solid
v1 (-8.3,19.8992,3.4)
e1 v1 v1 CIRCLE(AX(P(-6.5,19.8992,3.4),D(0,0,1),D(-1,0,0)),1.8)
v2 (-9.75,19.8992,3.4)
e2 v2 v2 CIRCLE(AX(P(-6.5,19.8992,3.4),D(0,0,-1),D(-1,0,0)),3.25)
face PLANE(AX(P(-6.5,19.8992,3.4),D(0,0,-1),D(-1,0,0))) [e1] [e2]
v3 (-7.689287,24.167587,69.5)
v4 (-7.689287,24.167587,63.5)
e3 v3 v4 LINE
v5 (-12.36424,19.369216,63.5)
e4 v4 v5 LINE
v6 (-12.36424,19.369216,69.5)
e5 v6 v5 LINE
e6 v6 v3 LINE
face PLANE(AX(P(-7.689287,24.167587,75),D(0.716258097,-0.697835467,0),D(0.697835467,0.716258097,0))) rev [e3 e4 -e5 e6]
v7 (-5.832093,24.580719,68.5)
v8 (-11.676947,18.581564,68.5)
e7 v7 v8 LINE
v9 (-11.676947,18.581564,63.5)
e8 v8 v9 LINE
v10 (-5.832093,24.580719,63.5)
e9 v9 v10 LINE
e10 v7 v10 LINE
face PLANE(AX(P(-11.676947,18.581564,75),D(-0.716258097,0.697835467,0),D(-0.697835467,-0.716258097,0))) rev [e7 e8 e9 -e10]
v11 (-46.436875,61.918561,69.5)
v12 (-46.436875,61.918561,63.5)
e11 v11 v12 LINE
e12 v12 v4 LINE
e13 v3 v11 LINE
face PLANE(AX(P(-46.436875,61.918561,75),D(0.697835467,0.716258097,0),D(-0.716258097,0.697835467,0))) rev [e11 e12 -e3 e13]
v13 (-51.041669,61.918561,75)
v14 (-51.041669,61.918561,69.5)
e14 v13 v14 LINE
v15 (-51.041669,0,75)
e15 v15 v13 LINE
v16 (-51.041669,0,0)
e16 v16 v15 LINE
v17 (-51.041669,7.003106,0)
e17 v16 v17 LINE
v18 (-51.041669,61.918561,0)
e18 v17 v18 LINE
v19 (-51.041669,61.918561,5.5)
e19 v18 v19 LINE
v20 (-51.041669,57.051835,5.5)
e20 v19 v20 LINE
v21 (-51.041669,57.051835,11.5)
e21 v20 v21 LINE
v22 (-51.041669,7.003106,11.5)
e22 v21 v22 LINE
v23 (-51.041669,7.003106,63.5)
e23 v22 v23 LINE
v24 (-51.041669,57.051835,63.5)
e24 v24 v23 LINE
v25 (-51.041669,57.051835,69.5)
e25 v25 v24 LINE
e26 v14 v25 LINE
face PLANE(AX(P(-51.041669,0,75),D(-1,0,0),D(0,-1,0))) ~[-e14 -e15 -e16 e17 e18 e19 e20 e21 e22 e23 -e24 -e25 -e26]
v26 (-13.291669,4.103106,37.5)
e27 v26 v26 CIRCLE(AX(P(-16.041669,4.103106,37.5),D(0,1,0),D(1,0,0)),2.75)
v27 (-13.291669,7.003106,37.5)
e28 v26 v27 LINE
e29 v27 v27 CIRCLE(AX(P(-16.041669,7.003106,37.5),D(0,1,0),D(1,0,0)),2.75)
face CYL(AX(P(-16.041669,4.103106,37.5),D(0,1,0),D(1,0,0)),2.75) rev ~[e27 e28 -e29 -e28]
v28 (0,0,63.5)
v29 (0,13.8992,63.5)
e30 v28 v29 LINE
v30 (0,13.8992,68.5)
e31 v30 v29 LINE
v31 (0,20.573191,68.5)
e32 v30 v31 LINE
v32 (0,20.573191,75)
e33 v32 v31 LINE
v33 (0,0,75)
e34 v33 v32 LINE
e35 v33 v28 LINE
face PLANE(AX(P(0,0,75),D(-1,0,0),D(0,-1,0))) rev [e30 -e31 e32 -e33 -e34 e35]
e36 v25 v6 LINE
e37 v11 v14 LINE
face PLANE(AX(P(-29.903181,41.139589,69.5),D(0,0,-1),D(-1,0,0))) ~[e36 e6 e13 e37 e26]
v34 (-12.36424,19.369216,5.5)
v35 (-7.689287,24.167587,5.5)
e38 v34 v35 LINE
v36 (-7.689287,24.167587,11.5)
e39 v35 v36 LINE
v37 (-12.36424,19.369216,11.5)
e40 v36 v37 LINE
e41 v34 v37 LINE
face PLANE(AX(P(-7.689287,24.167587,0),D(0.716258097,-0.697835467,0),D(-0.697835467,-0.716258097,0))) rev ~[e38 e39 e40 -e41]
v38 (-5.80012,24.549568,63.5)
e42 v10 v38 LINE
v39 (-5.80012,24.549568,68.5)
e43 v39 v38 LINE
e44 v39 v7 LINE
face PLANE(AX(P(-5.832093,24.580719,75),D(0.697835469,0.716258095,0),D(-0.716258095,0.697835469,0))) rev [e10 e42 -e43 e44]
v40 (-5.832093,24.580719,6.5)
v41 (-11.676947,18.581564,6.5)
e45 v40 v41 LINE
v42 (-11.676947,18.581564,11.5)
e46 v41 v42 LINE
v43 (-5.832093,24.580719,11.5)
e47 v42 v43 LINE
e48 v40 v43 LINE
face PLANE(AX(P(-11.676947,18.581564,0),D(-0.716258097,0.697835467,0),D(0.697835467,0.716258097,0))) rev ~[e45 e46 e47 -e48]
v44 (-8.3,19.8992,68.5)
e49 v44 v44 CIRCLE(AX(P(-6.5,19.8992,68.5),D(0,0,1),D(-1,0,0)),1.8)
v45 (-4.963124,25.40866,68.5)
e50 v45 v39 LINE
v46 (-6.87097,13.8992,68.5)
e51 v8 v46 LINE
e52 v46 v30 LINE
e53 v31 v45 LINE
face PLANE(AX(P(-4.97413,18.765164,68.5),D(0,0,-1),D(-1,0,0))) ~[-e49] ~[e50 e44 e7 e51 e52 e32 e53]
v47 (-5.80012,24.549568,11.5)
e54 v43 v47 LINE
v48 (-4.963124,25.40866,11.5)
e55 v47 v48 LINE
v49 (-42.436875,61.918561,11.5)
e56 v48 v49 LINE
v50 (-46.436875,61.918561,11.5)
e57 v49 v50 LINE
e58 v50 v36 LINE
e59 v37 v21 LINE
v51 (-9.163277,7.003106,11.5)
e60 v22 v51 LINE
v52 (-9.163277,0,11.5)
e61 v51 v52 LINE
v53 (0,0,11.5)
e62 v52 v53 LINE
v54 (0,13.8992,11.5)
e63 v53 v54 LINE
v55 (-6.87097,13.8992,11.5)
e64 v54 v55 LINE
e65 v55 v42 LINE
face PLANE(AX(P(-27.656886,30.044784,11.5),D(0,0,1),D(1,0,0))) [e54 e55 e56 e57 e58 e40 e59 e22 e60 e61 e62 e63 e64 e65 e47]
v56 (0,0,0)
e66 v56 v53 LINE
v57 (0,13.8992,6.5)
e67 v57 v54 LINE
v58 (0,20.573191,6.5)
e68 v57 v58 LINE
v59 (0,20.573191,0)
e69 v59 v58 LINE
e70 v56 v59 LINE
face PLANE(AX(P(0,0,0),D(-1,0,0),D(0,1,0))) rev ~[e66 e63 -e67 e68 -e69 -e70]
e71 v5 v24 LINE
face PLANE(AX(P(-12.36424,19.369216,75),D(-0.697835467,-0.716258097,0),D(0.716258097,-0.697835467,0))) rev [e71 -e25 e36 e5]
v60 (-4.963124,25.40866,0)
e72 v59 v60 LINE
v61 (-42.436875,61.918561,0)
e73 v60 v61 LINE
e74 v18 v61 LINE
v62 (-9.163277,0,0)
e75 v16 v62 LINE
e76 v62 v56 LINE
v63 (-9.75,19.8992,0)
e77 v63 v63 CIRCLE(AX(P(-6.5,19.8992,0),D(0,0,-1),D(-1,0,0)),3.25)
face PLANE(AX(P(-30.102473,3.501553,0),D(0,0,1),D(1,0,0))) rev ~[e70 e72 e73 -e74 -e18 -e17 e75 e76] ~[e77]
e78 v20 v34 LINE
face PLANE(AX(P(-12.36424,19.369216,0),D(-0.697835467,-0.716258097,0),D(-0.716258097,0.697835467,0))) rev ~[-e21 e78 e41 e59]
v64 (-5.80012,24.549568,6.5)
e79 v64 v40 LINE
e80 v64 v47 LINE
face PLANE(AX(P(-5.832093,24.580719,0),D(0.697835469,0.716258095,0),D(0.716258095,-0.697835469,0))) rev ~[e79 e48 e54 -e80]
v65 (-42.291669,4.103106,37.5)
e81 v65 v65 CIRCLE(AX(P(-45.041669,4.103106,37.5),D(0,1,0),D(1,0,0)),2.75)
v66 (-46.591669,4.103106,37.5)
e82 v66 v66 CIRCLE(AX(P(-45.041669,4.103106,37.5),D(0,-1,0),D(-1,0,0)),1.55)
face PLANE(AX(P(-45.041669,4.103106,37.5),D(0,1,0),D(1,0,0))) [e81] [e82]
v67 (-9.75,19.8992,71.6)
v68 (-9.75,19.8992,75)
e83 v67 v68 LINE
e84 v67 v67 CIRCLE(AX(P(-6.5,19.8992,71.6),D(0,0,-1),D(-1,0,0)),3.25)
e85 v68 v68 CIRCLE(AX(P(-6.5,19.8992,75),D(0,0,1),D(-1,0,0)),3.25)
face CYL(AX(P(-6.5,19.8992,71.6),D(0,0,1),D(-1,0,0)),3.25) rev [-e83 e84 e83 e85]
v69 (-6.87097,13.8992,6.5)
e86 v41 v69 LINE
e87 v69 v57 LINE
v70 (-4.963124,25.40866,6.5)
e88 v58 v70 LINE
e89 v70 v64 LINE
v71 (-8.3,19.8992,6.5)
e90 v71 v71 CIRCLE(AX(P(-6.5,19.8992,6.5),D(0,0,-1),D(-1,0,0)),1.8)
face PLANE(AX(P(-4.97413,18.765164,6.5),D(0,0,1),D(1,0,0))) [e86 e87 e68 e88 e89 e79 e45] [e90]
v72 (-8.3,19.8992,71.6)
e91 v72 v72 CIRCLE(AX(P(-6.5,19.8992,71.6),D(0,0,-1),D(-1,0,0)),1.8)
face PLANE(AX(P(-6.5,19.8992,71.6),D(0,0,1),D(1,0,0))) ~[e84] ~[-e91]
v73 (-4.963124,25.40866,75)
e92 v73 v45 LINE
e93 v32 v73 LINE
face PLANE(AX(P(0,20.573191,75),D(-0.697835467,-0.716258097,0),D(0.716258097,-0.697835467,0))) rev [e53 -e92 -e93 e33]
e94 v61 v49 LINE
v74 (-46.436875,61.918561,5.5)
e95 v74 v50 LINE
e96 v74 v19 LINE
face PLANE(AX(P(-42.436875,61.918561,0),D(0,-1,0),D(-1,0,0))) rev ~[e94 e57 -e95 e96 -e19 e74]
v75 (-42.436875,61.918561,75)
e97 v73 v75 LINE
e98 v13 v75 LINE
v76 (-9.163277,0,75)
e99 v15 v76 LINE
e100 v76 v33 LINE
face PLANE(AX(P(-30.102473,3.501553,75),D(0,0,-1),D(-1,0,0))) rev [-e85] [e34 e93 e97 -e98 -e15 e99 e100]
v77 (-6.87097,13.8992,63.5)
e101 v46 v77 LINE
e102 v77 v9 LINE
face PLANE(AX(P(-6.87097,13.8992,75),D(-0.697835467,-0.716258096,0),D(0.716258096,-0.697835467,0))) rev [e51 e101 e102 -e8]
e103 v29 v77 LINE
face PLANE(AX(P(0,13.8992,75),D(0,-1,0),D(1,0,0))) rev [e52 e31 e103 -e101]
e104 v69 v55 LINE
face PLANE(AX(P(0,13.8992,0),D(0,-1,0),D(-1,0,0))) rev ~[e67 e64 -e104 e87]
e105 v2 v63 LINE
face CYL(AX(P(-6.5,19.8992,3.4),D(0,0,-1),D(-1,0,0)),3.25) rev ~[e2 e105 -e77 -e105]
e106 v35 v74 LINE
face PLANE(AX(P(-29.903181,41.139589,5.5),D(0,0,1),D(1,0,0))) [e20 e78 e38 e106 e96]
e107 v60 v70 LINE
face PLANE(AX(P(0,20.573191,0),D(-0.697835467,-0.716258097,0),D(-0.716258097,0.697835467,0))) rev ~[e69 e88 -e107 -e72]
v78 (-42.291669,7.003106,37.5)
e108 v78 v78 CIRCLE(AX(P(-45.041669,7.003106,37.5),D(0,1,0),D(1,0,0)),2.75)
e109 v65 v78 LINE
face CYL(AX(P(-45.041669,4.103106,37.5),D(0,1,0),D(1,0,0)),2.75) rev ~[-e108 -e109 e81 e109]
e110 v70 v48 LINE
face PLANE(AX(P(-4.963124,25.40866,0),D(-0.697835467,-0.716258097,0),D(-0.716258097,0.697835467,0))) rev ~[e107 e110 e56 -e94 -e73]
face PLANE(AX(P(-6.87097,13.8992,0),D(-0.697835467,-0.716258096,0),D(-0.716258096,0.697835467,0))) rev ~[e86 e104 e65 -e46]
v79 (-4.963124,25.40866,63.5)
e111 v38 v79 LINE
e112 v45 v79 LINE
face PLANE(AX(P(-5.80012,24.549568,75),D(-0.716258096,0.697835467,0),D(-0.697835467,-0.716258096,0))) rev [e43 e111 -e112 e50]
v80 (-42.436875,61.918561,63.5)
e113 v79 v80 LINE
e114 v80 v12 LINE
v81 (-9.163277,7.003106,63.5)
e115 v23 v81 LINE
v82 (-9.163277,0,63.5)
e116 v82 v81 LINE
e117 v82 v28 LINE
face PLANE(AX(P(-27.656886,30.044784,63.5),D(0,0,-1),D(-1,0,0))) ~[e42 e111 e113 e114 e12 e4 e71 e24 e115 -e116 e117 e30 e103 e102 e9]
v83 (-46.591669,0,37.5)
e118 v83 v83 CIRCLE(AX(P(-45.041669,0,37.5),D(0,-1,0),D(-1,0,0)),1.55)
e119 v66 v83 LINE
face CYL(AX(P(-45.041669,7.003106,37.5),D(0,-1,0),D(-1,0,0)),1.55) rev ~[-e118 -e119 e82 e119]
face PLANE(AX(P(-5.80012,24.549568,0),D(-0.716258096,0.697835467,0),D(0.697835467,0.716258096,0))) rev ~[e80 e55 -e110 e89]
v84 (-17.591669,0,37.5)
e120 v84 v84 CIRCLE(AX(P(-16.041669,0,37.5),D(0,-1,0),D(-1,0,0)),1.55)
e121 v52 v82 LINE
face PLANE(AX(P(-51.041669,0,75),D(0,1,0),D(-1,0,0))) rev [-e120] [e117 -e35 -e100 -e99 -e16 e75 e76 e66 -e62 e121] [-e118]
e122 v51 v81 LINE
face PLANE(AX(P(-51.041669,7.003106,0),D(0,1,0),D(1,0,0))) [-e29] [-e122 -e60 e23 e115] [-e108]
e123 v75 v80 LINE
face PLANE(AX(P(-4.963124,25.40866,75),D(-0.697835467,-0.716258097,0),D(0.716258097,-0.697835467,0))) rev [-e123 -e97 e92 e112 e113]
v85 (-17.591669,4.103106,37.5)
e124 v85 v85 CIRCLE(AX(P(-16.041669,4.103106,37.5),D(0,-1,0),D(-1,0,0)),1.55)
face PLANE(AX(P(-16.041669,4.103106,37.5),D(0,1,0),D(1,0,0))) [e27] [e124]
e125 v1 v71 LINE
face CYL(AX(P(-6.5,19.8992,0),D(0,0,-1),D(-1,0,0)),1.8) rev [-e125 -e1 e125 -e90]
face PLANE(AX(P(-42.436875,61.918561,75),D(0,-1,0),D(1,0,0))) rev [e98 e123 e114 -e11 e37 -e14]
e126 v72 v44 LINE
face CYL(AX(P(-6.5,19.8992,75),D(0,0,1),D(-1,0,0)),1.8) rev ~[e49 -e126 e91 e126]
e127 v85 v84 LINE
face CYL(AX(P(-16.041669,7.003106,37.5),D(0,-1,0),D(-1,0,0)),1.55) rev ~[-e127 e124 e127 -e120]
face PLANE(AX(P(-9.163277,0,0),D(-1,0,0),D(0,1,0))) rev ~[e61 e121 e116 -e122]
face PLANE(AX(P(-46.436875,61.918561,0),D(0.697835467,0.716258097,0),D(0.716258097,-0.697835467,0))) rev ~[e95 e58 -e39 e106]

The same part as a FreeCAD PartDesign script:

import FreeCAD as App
import Part
import Sketcher

V = App.Vector


def add_polygon(sketch, points):
    """Adds a closed chain of lines whose ends are joined by coincident constraints."""
    first, n = sketch.GeometryCount, len(points)
    for a, b in zip(points, points[1:] + points[:1]):
        sketch.addGeometry(Part.LineSegment(App.Vector(*a, 0), App.Vector(*b, 0)), False)
    for i in range(n):
        sketch.addConstraint(Sketcher.Constraint("Coincident", first + i, 2, first + (i + 1) % n, 1))

doc = App.newDocument("Part")
body = doc.addObject("PartDesign::Body", "Body")

sketch1 = body.newObject("Sketcher::SketchObject", "Sketch")
sketch1.AttachmentSupport = (doc.getObject("XY_Plane"), [""])
sketch1.MapMode = "FlatFace"
add_polygon(sketch1, [(-51, 61.9), (-51, 57.1), (-12.4, 19.4), (-7.7, 24.2), (-46.4, 61.9)])
sketch1.addConstraint([
    Sketcher.Constraint("Vertical", 0),
    Sketcher.Constraint("Horizontal", 4),
    Sketcher.Constraint("Perpendicular", 1, 2),
    Sketcher.Constraint("Perpendicular", 2, 3),
    Sketcher.Constraint("Distance", 1, 53.999289),
    Sketcher.Constraint("Distance", 2, 6.69922),
    Sketcher.Constraint("DistanceX", 4, 2, 4, 1, 4.604794),
    Sketcher.Constraint("DistanceX", 0, 2, -1, 1, 51.041669),
    Sketcher.Constraint("DistanceX", 1, 2, -1, 1, 12.36424),
    Sketcher.Constraint("DistanceY", -1, 1, 3, 2, 61.918561),
])
pad1 = body.newObject("PartDesign::Pad", "Pad")
pad1.Profile = sketch1
pad1.Length = 5.5
body2 = doc.addObject("PartDesign::Body", "Body001")

sketch2 = body2.newObject("Sketcher::SketchObject", "Sketch001")
sketch2.AttachmentSupport = (doc.getObject("XY_Plane001"), [""])
sketch2.MapMode = "FlatFace"
add_polygon(sketch2, [(-6.871, 13.899), (0, 13.899), (0, 20.573), (-4.963, 25.409), (-5.8, 24.55), (-5.832, 24.581), (-11.677, 18.582)])
sketch2.addGeometry(Part.Circle(V(-6.5, 19.899, 0), V(0, 0, 1), 1.8), False)
sketch2.addConstraint([
    Sketcher.Constraint("Horizontal", 0),
    Sketcher.Constraint("Vertical", 1),
    Sketcher.Constraint("PointOnObject", 0, 2, -2),
    Sketcher.Constraint("Perpendicular", 2, 3),
    Sketcher.Constraint("Perpendicular", 3, 4),
    Sketcher.Constraint("Perpendicular", 4, 5),
    Sketcher.Constraint("Perpendicular", 5, 6),
    Sketcher.Constraint("Diameter", 7, 3.6),
    Sketcher.Constraint("DistanceY", 0, 2, 7, 3, 6.0),
    Sketcher.Constraint("DistanceX", 7, 3, -1, 1, 6.5),
    Sketcher.Constraint("DistanceX", 0, 1, 0, 2, 6.87097),
    Sketcher.Constraint("DistanceY", 1, 1, 1, 2, 6.673991),
    Sketcher.Constraint("DistanceY", -1, 1, 7, 3, 19.8992),
    Sketcher.Constraint("Distance", 2, 6.929239),
    Sketcher.Constraint("Distance", 4, 0.04464),
    Sketcher.Constraint("Distance", 5, 8.375689),
    Sketcher.Constraint("Distance", 6, 6.709839),
])
pad2 = body2.newObject("PartDesign::Pad", "Pad001")
pad2.Profile = sketch2
pad2.Length = 6.5
body.AllowCompound = True
doc.recompute()

boolean = body.newObject("PartDesign::Boolean", "Boolean")
boolean.Type = "Fuse"
boolean.addObjects([body2])

sketch3 = body.newObject("Sketcher::SketchObject", "Sketch002")
sketch3.AttachmentSupport = (doc.getObject("XY_Plane"), [""])
sketch3.MapMode = "FlatFace"
add_polygon(sketch3, [(-9.163, 0), (0, 0), (0, 13.899), (-6.871, 13.899), (-11.677, 18.582), (-5.832, 24.581), (-5.8, 24.55), (-4.963, 25.409), (-42.437, 61.919), (-46.437, 61.919), (-7.689, 24.168), (-12.364, 19.369), (-51.042, 57.052), (-51.042, 7.003), (-9.163, 7.003)])
sketch3.addConstraint([
    Sketcher.Constraint("Horizontal", 0),
    Sketcher.Constraint("Vertical", 1),
    Sketcher.Constraint("Horizontal", 2),
    Sketcher.Constraint("Horizontal", 8),
    Sketcher.Constraint("Vertical", 12),
    Sketcher.Constraint("Horizontal", 13),
    Sketcher.Constraint("Vertical", 14),
    Sketcher.Constraint("Coincident", 0, 2, -1, 1),
    Sketcher.Constraint("Perpendicular", 3, 4),
    Sketcher.Constraint("Perpendicular", 4, 5),
    Sketcher.Constraint("Perpendicular", 5, 6),
    Sketcher.Constraint("Perpendicular", 6, 7),
    Sketcher.Constraint("Parallel", 7, 9),
    Sketcher.Constraint("Perpendicular", 9, 10),
    Sketcher.Constraint("Perpendicular", 10, 11),
    Sketcher.Constraint("DistanceX", 8, 2, 8, 1, 4.0),
    Sketcher.Constraint("DistanceY", 1, 1, 1, 2, 13.8992),
    Sketcher.Constraint("DistanceX", 2, 2, 2, 1, 6.87097),
    Sketcher.Constraint("DistanceX", 13, 1, 13, 2, 41.878392),
    Sketcher.Constraint("DistanceY", 12, 2, 12, 1, 50.04873),
    Sketcher.Constraint("DistanceY", 6, 2, 7, 2, 36.509901),
    Sketcher.Constraint("DistanceX", 12, 2, 2, 2, 44.170699),
    Sketcher.Constraint("Distance", 3, 6.709839),
    Sketcher.Constraint("Distance", 4, 8.375689),
    Sketcher.Constraint("Distance", 5, 0.04464),
    Sketcher.Constraint("Distance", 7, 52.318781),
    Sketcher.Constraint("Distance", 10, 6.69922),
    Sketcher.Constraint("Distance", 11, 53.999289),
    Sketcher.Constraint("DistanceY", 14, 2, 14, 1, 7.003106),
])
pad3 = body.newObject("PartDesign::Pad", "Pad002")
pad3.Profile = sketch3
pad3.Length = 11.5

sketch4 = body.newObject("Sketcher::SketchObject", "Sketch003")
sketch4.AttachmentSupport = (doc.getObject("XY_Plane"), [""])
sketch4.MapMode = "FlatFace"
add_polygon(sketch4, [(-51, 7), (-51, 0), (-9, 0), (-9, 7)])
sketch4.addConstraint([
    Sketcher.Constraint("Vertical", 0),
    Sketcher.Constraint("Horizontal", 1),
    Sketcher.Constraint("Vertical", 2),
    Sketcher.Constraint("Horizontal", 3),
    Sketcher.Constraint("PointOnObject", 0, 2, -1),
    Sketcher.Constraint("DistanceX", 1, 1, 1, 2, 41.878392),
    Sketcher.Constraint("DistanceY", 0, 2, 0, 1, 7.003106),
    Sketcher.Constraint("DistanceX", 0, 2, -1, 1, 51.041669),
])
pad4 = body.newObject("PartDesign::Pad", "Pad003")
pad4.Profile = sketch4
pad4.Length = 63.5
body3 = doc.addObject("PartDesign::Body", "Body002")
doc.recompute()

body3.BaseFeature = body
doc.recompute()

mirroring = doc.addObject("Part::Mirroring", "Mirroring")
mirroring.Source = body
mirroring.Base = V(0, 0, 37.5)
mirroring.Normal = V(0, 0, 1)
body4 = doc.addObject("PartDesign::Body", "Body003")
body4.BaseFeature = mirroring
boolean2 = body3.newObject("PartDesign::Boolean", "Boolean001")
boolean2.Type = "Fuse"
boolean2.addObjects([body4])
doc.recompute()

sketch5 = body3.newObject("Sketcher::SketchObject", "Sketch004")
sketch5.AttachmentSupport = (doc.getObject("XZ_Plane002"), [""])
sketch5.MapMode = "FlatFace"
sketch5.AttachmentOffset = App.Placement(V(0, 0, -7.003106), App.Rotation())
sketch5.addGeometry([
    Part.Circle(V(-45, 37.5, 0), V(0, 0, 1), 1.6),
    Part.Circle(V(-16, 37.5, 0), V(0, 0, 1), 1.6),
], False)
sketch5.addConstraint([
    Sketcher.Constraint("Equal", 0, 1),
    Sketcher.Constraint("Horizontal", 0, 3, 1, 3),
    Sketcher.Constraint("Diameter", 0, 3.1),
    Sketcher.Constraint("DistanceX", 0, 3, 1, 3, 29.0),
    Sketcher.Constraint("DistanceY", -1, 1, 0, 3, 37.5),
    Sketcher.Constraint("DistanceX", 0, 3, -1, 1, 45.041669),
])
doc.recompute()
hole = body3.newObject("PartDesign::Hole", "Hole")
hole.Profile = sketch5
hole.ThreadType = "None"
hole.Diameter = 3.1
hole.DepthType = "ThroughAll"
hole.HoleCutType = "Counterbore"
hole.HoleCutDiameter = 5.5
hole.HoleCutDepth = 2.9
hole.Reversed = True

sketch6 = body3.newObject("Sketcher::SketchObject", "Sketch005")
sketch6.AttachmentSupport = (doc.getObject("XY_Plane002"), [""])
sketch6.MapMode = "FlatFace"
sketch6.addGeometry(Part.Circle(V(-6.5, 19.9, 0), V(0, 0, 1), 1.8), False)
sketch6.addConstraint([
    Sketcher.Constraint("Diameter", 0, 3.6),
    Sketcher.Constraint("DistanceX", 0, 3, -1, 1, 6.5),
    Sketcher.Constraint("DistanceY", -1, 1, 0, 3, 19.8992),
])
doc.recompute()
hole2 = body3.newObject("PartDesign::Hole", "Hole001")
hole2.Profile = sketch6
hole2.ThreadType = "None"
hole2.Diameter = 3.6
hole2.DepthType = "ThroughAll"
hole2.HoleCutType = "Counterbore"
hole2.HoleCutDiameter = 6.5
hole2.HoleCutDepth = 3.4
hole2.Reversed = True
doc.recompute()

datumplane = body3.newObject("PartDesign::Plane", "DatumPlane")
datumplane.AttachmentSupport = (doc.getObject("XY_Plane002"), [""])
datumplane.MapMode = "FlatFace"
datumplane.AttachmentOffset = App.Placement(V(0, 0, 37.5), App.Rotation())
mirrored = body3.newObject("PartDesign::Mirrored", "Mirrored")
mirrored.Originals = [hole2]
mirrored.MirrorPlane = (datumplane, [""])
body3.Tip = mirrored
mirroring.Visibility = False

doc.recompute()
